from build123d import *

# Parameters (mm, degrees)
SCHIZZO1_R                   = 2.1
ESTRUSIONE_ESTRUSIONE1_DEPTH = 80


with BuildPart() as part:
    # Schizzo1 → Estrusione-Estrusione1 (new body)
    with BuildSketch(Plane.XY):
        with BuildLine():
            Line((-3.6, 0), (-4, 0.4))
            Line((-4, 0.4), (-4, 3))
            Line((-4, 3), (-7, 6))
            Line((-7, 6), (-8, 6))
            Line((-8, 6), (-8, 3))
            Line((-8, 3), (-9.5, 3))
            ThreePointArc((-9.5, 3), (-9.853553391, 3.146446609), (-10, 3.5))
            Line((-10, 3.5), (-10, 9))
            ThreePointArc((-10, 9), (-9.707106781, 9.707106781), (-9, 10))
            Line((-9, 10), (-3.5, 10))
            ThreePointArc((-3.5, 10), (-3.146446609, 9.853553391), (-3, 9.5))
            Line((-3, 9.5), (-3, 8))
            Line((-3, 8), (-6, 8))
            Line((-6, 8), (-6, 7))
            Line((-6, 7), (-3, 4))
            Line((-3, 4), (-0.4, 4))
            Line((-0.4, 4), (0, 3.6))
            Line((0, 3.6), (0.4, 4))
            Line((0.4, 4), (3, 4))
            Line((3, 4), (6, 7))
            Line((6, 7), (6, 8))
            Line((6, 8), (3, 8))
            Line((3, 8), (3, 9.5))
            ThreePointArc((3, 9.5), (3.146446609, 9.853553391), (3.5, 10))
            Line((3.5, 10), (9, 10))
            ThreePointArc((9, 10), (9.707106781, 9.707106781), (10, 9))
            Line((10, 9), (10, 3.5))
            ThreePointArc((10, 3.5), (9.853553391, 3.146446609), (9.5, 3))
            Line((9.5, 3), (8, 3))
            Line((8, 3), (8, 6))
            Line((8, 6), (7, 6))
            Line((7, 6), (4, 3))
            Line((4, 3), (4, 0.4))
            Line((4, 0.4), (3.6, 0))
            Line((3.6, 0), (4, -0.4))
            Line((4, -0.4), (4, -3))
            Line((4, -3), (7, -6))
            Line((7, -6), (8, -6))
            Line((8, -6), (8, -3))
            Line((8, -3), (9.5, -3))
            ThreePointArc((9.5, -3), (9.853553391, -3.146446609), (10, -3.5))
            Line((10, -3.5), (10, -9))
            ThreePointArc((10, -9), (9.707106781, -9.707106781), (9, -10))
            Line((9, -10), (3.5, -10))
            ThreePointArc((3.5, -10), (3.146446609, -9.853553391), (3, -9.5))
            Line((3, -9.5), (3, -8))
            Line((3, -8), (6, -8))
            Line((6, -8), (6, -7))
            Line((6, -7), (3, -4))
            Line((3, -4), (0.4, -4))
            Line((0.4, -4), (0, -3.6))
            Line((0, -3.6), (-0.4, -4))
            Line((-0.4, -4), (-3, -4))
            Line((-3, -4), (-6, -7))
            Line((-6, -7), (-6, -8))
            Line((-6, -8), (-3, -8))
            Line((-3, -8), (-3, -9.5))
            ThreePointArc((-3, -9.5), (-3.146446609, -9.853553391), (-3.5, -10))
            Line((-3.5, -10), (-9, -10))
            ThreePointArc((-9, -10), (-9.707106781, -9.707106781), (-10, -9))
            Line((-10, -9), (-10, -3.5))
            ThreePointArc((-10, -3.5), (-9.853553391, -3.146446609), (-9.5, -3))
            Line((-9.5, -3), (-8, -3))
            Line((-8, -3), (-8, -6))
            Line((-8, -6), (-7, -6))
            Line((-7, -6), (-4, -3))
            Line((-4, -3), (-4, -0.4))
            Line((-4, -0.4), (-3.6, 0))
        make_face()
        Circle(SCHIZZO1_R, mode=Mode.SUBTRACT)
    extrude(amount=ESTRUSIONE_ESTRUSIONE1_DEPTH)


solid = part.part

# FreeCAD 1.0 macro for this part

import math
import FreeCAD as App
import Part
import Sketcher

V = App.Vector

doc = App.newDocument("Part")
body = doc.addObject("PartDesign::Body", "Body")

# Sketch on XY plane
sketch1 = doc.addObject("Sketcher::SketchObject", "Sketch")
body.addObject(sketch1)
sketch1.AttachmentSupport = (doc.XY_Plane, [""])
sketch1.MapMode = "FlatFace"
sketch1.addGeometry(Part.LineSegment(V(-4, 0.4, 0), V(-3.6, 0, 0)), False)
sketch1.addGeometry(Part.LineSegment(V(-3.6, 0, 0), V(-4, -0.4, 0)), False)
sketch1.addGeometry(Part.LineSegment(V(-4, -0.4, 0), V(-4, -3, 0)), False)
sketch1.addGeometry(Part.LineSegment(V(-4, -3, 0), V(-7, -6, 0)), False)
sketch1.addGeometry(Part.LineSegment(V(-7, -6, 0), V(-8, -6, 0)), False)
sketch1.addGeometry(Part.LineSegment(V(-8, -6, 0), V(-8, -3, 0)), False)
sketch1.addGeometry(Part.LineSegment(V(-8, -3, 0), V(-9.5, -3, 0)), False)
sketch1.addGeometry(Part.ArcOfCircle(Part.Circle(V(-9.5, -3.5, 0), V(0, 0, 1), 0.5), math.radians(90), math.radians(180)), False)
sketch1.addGeometry(Part.LineSegment(V(-10, -3.5, 0), V(-10, -9, 0)), False)
sketch1.addGeometry(Part.ArcOfCircle(Part.Circle(V(-9, -9, 0), V(0, 0, 1), 1), math.radians(-180), math.radians(-90)), False)
sketch1.addGeometry(Part.LineSegment(V(-9, -10, 0), V(-3.5, -10, 0)), False)
sketch1.addGeometry(Part.ArcOfCircle(Part.Circle(V(-3.5, -9.5, 0), V(0, 0, 1), 0.5), math.radians(-90), math.radians(0)), False)
sketch1.addGeometry(Part.LineSegment(V(-3, -9.5, 0), V(-3, -8, 0)), False)
sketch1.addGeometry(Part.LineSegment(V(-3, -8, 0), V(-6, -8, 0)), False)
sketch1.addGeometry(Part.LineSegment(V(-6, -8, 0), V(-6, -7, 0)), False)
sketch1.addGeometry(Part.LineSegment(V(-6, -7, 0), V(-3, -4, 0)), False)
sketch1.addGeometry(Part.LineSegment(V(-3, -4, 0), V(-0.4, -4, 0)), False)
sketch1.addGeometry(Part.LineSegment(V(-0.4, -4, 0), V(0, -3.6, 0)), False)
sketch1.addGeometry(Part.LineSegment(V(0, -3.6, 0), V(0.4, -4, 0)), False)
sketch1.addGeometry(Part.LineSegment(V(0.4, -4, 0), V(3, -4, 0)), False)
sketch1.addGeometry(Part.LineSegment(V(3, -4, 0), V(6, -7, 0)), False)
sketch1.addGeometry(Part.LineSegment(V(6, -7, 0), V(6, -8, 0)), False)
sketch1.addGeometry(Part.LineSegment(V(6, -8, 0), V(3, -8, 0)), False)
sketch1.addGeometry(Part.LineSegment(V(3, -8, 0), V(3, -9.5, 0)), False)
sketch1.addGeometry(Part.ArcOfCircle(Part.Circle(V(3.5, -9.5, 0), V(0, 0, 1), 0.5), math.radians(180), math.radians(270)), False)
sketch1.addGeometry(Part.LineSegment(V(3.5, -10, 0), V(9, -10, 0)), False)
sketch1.addGeometry(Part.ArcOfCircle(Part.Circle(V(9, -9, 0), V(0, 0, 1), 1), math.radians(-90), math.radians(0)), False)
sketch1.addGeometry(Part.LineSegment(V(10, -9, 0), V(10, -3.5, 0)), False)
sketch1.addGeometry(Part.ArcOfCircle(Part.Circle(V(9.5, -3.5, 0), V(0, 0, 1), 0.5), math.radians(0), math.radians(90)), False)
sketch1.addGeometry(Part.LineSegment(V(9.5, -3, 0), V(8, -3, 0)), False)
sketch1.addGeometry(Part.LineSegment(V(8, -3, 0), V(8, -6, 0)), False)
sketch1.addGeometry(Part.LineSegment(V(8, -6, 0), V(7, -6, 0)), False)
sketch1.addGeometry(Part.LineSegment(V(7, -6, 0), V(4, -3, 0)), False)
sketch1.addGeometry(Part.LineSegment(V(4, -3, 0), V(4, -0.4, 0)), False)
sketch1.addGeometry(Part.LineSegment(V(4, -0.4, 0), V(3.6, 0, 0)), False)
sketch1.addGeometry(Part.LineSegment(V(3.6, 0, 0), V(4, 0.4, 0)), False)
sketch1.addGeometry(Part.LineSegment(V(4, 0.4, 0), V(4, 3, 0)), False)
sketch1.addGeometry(Part.LineSegment(V(4, 3, 0), V(7, 6, 0)), False)
sketch1.addGeometry(Part.LineSegment(V(7, 6, 0), V(8, 6, 0)), False)
sketch1.addGeometry(Part.LineSegment(V(8, 6, 0), V(8, 3, 0)), False)
sketch1.addGeometry(Part.LineSegment(V(8, 3, 0), V(9.5, 3, 0)), False)
sketch1.addGeometry(Part.ArcOfCircle(Part.Circle(V(9.5, 3.5, 0), V(0, 0, 1), 0.5), math.radians(-90), math.radians(0)), False)
sketch1.addGeometry(Part.LineSegment(V(10, 3.5, 0), V(10, 9, 0)), False)
sketch1.addGeometry(Part.ArcOfCircle(Part.Circle(V(9, 9, 0), V(0, 0, 1), 1), math.radians(0), math.radians(90)), False)
sketch1.addGeometry(Part.LineSegment(V(9, 10, 0), V(3.5, 10, 0)), False)
sketch1.addGeometry(Part.ArcOfCircle(Part.Circle(V(3.5, 9.5, 0), V(0, 0, 1), 0.5), math.radians(90), math.radians(180)), False)
sketch1.addGeometry(Part.LineSegment(V(3, 9.5, 0), V(3, 8, 0)), False)
sketch1.addGeometry(Part.LineSegment(V(3, 8, 0), V(6, 8, 0)), False)
sketch1.addGeometry(Part.LineSegment(V(6, 8, 0), V(6, 7, 0)), False)
sketch1.addGeometry(Part.LineSegment(V(6, 7, 0), V(3, 4, 0)), False)
sketch1.addGeometry(Part.LineSegment(V(3, 4, 0), V(0.4, 4, 0)), False)
sketch1.addGeometry(Part.LineSegment(V(0.4, 4, 0), V(0, 3.6, 0)), False)
sketch1.addGeometry(Part.LineSegment(V(0, 3.6, 0), V(-0.4, 4, 0)), False)
sketch1.addGeometry(Part.LineSegment(V(-0.4, 4, 0), V(-3, 4, 0)), False)
sketch1.addGeometry(Part.LineSegment(V(-3, 4, 0), V(-6, 7, 0)), False)
sketch1.addGeometry(Part.LineSegment(V(-6, 7, 0), V(-6, 8, 0)), False)
sketch1.addGeometry(Part.LineSegment(V(-6, 8, 0), V(-3, 8, 0)), False)
sketch1.addGeometry(Part.LineSegment(V(-3, 8, 0), V(-3, 9.5, 0)), False)
sketch1.addGeometry(Part.ArcOfCircle(Part.Circle(V(-3.5, 9.5, 0), V(0, 0, 1), 0.5), math.radians(0), math.radians(90)), False)
sketch1.addGeometry(Part.LineSegment(V(-3.5, 10, 0), V(-9, 10, 0)), False)
sketch1.addGeometry(Part.ArcOfCircle(Part.Circle(V(-9, 9, 0), V(0, 0, 1), 1), math.radians(90), math.radians(180)), False)
sketch1.addGeometry(Part.LineSegment(V(-10, 9, 0), V(-10, 3.5, 0)), False)
sketch1.addGeometry(Part.ArcOfCircle(Part.Circle(V(-9.5, 3.5, 0), V(0, 0, 1), 0.5), math.radians(180), math.radians(270)), False)
sketch1.addGeometry(Part.LineSegment(V(-9.5, 3, 0), V(-8, 3, 0)), False)
sketch1.addGeometry(Part.LineSegment(V(-8, 3, 0), V(-8, 6, 0)), False)
sketch1.addGeometry(Part.LineSegment(V(-8, 6, 0), V(-7, 6, 0)), False)
sketch1.addGeometry(Part.LineSegment(V(-7, 6, 0), V(-4, 3, 0)), False)
sketch1.addGeometry(Part.LineSegment(V(-4, 3, 0), V(-4, 0.4, 0)), False)
sketch1.addGeometry(Part.Circle(V(0, 0, 0), V(0, 0, 1), 2.1), False)
sketch1.addConstraint(Sketcher.Constraint("Coincident", 0, 2, 1, 1))
sketch1.addConstraint(Sketcher.Constraint("Coincident", 1, 2, 2, 1))
sketch1.addConstraint(Sketcher.Constraint("Coincident", 2, 2, 3, 1))
sketch1.addConstraint(Sketcher.Constraint("Coincident", 3, 2, 4, 1))
sketch1.addConstraint(Sketcher.Constraint("Coincident", 4, 2, 5, 1))
sketch1.addConstraint(Sketcher.Constraint("Coincident", 5, 2, 6, 1))
sketch1.addConstraint(Sketcher.Constraint("Tangent", 6, 2, 7, 1))
sketch1.addConstraint(Sketcher.Constraint("Tangent", 7, 2, 8, 1))
sketch1.addConstraint(Sketcher.Constraint("Tangent", 8, 2, 9, 1))
sketch1.addConstraint(Sketcher.Constraint("Tangent", 9, 2, 10, 1))
sketch1.addConstraint(Sketcher.Constraint("Tangent", 10, 2, 11, 1))
sketch1.addConstraint(Sketcher.Constraint("Tangent", 11, 2, 12, 1))
sketch1.addConstraint(Sketcher.Constraint("Coincident", 12, 2, 13, 1))
sketch1.addConstraint(Sketcher.Constraint("Coincident", 13, 2, 14, 1))
sketch1.addConstraint(Sketcher.Constraint("Coincident", 14, 2, 15, 1))
sketch1.addConstraint(Sketcher.Constraint("Coincident", 15, 2, 16, 1))
sketch1.addConstraint(Sketcher.Constraint("Coincident", 16, 2, 17, 1))
sketch1.addConstraint(Sketcher.Constraint("Coincident", 17, 2, 18, 1))
sketch1.addConstraint(Sketcher.Constraint("Coincident", 18, 2, 19, 1))
sketch1.addConstraint(Sketcher.Constraint("Coincident", 19, 2, 20, 1))
sketch1.addConstraint(Sketcher.Constraint("Coincident", 20, 2, 21, 1))
sketch1.addConstraint(Sketcher.Constraint("Coincident", 21, 2, 22, 1))
sketch1.addConstraint(Sketcher.Constraint("Coincident", 22, 2, 23, 1))
sketch1.addConstraint(Sketcher.Constraint("Tangent", 23, 2, 24, 1))
sketch1.addConstraint(Sketcher.Constraint("Tangent", 24, 2, 25, 1))
sketch1.addConstraint(Sketcher.Constraint("Tangent", 25, 2, 26, 1))
sketch1.addConstraint(Sketcher.Constraint("Tangent", 26, 2, 27, 1))
sketch1.addConstraint(Sketcher.Constraint("Tangent", 27, 2, 28, 1))
sketch1.addConstraint(Sketcher.Constraint("Tangent", 28, 2, 29, 1))
sketch1.addConstraint(Sketcher.Constraint("Coincident", 29, 2, 30, 1))
sketch1.addConstraint(Sketcher.Constraint("Coincident", 30, 2, 31, 1))
sketch1.addConstraint(Sketcher.Constraint("Coincident", 31, 2, 32, 1))
sketch1.addConstraint(Sketcher.Constraint("Coincident", 32, 2, 33, 1))
sketch1.addConstraint(Sketcher.Constraint("Coincident", 33, 2, 34, 1))
sketch1.addConstraint(Sketcher.Constraint("Coincident", 34, 2, 35, 1))
sketch1.addConstraint(Sketcher.Constraint("Coincident", 35, 2, 36, 1))
sketch1.addConstraint(Sketcher.Constraint("Coincident", 36, 2, 37, 1))
sketch1.addConstraint(Sketcher.Constraint("Coincident", 37, 2, 38, 1))
sketch1.addConstraint(Sketcher.Constraint("Coincident", 38, 2, 39, 1))
sketch1.addConstraint(Sketcher.Constraint("Coincident", 39, 2, 40, 1))
sketch1.addConstraint(Sketcher.Constraint("Tangent", 40, 2, 41, 1))
sketch1.addConstraint(Sketcher.Constraint("Tangent", 41, 2, 42, 1))
sketch1.addConstraint(Sketcher.Constraint("Tangent", 42, 2, 43, 1))
sketch1.addConstraint(Sketcher.Constraint("Tangent", 43, 2, 44, 1))
sketch1.addConstraint(Sketcher.Constraint("Tangent", 44, 2, 45, 1))
sketch1.addConstraint(Sketcher.Constraint("Tangent", 45, 2, 46, 1))
sketch1.addConstraint(Sketcher.Constraint("Coincident", 46, 2, 47, 1))
sketch1.addConstraint(Sketcher.Constraint("Coincident", 47, 2, 48, 1))
sketch1.addConstraint(Sketcher.Constraint("Coincident", 48, 2, 49, 1))
sketch1.addConstraint(Sketcher.Constraint("Coincident", 49, 2, 50, 1))
sketch1.addConstraint(Sketcher.Constraint("Coincident", 50, 2, 51, 1))
sketch1.addConstraint(Sketcher.Constraint("Coincident", 51, 2, 52, 1))
sketch1.addConstraint(Sketcher.Constraint("Coincident", 52, 2, 53, 1))
sketch1.addConstraint(Sketcher.Constraint("Coincident", 53, 2, 54, 1))
sketch1.addConstraint(Sketcher.Constraint("Coincident", 54, 2, 55, 1))
sketch1.addConstraint(Sketcher.Constraint("Coincident", 55, 2, 56, 1))
sketch1.addConstraint(Sketcher.Constraint("Coincident", 56, 2, 57, 1))
sketch1.addConstraint(Sketcher.Constraint("Tangent", 57, 2, 58, 1))
sketch1.addConstraint(Sketcher.Constraint("Tangent", 58, 2, 59, 1))
sketch1.addConstraint(Sketcher.Constraint("Tangent", 59, 2, 60, 1))
sketch1.addConstraint(Sketcher.Constraint("Tangent", 60, 2, 61, 1))
sketch1.addConstraint(Sketcher.Constraint("Tangent", 61, 2, 62, 1))
sketch1.addConstraint(Sketcher.Constraint("Tangent", 62, 2, 63, 1))
sketch1.addConstraint(Sketcher.Constraint("Coincident", 63, 2, 64, 1))
sketch1.addConstraint(Sketcher.Constraint("Coincident", 64, 2, 65, 1))
sketch1.addConstraint(Sketcher.Constraint("Coincident", 65, 2, 66, 1))
sketch1.addConstraint(Sketcher.Constraint("Coincident", 66, 2, 67, 1))
sketch1.addConstraint(Sketcher.Constraint("Coincident", 67, 2, 0, 1))
sketch1.addConstraint(Sketcher.Constraint("Vertical", 2))
sketch1.addConstraint(Sketcher.Constraint("Horizontal", 4))
sketch1.addConstraint(Sketcher.Constraint("Vertical", 5))
sketch1.addConstraint(Sketcher.Constraint("Horizontal", 6))
sketch1.addConstraint(Sketcher.Constraint("Vertical", 8))
sketch1.addConstraint(Sketcher.Constraint("Horizontal", 10))
sketch1.addConstraint(Sketcher.Constraint("Vertical", 12))
sketch1.addConstraint(Sketcher.Constraint("Horizontal", 13))
sketch1.addConstraint(Sketcher.Constraint("Vertical", 14))
sketch1.addConstraint(Sketcher.Constraint("Horizontal", 16))
sketch1.addConstraint(Sketcher.Constraint("Horizontal", 19))
sketch1.addConstraint(Sketcher.Constraint("Vertical", 21))
sketch1.addConstraint(Sketcher.Constraint("Horizontal", 22))
sketch1.addConstraint(Sketcher.Constraint("Vertical", 23))
sketch1.addConstraint(Sketcher.Constraint("Horizontal", 25))
sketch1.addConstraint(Sketcher.Constraint("Vertical", 27))
sketch1.addConstraint(Sketcher.Constraint("Horizontal", 29))
sketch1.addConstraint(Sketcher.Constraint("Vertical", 30))
sketch1.addConstraint(Sketcher.Constraint("Horizontal", 31))
sketch1.addConstraint(Sketcher.Constraint("Vertical", 33))
sketch1.addConstraint(Sketcher.Constraint("Vertical", 36))
sketch1.addConstraint(Sketcher.Constraint("Horizontal", 38))
sketch1.addConstraint(Sketcher.Constraint("Vertical", 39))
sketch1.addConstraint(Sketcher.Constraint("Horizontal", 40))
sketch1.addConstraint(Sketcher.Constraint("Vertical", 42))
sketch1.addConstraint(Sketcher.Constraint("Horizontal", 44))
sketch1.addConstraint(Sketcher.Constraint("Vertical", 46))
sketch1.addConstraint(Sketcher.Constraint("Horizontal", 47))
sketch1.addConstraint(Sketcher.Constraint("Vertical", 48))
sketch1.addConstraint(Sketcher.Constraint("Horizontal", 50))
sketch1.addConstraint(Sketcher.Constraint("Horizontal", 53))
sketch1.addConstraint(Sketcher.Constraint("Vertical", 55))
sketch1.addConstraint(Sketcher.Constraint("Horizontal", 56))
sketch1.addConstraint(Sketcher.Constraint("Vertical", 57))
sketch1.addConstraint(Sketcher.Constraint("Horizontal", 59))
sketch1.addConstraint(Sketcher.Constraint("Vertical", 61))
sketch1.addConstraint(Sketcher.Constraint("Horizontal", 63))
sketch1.addConstraint(Sketcher.Constraint("Vertical", 64))
sketch1.addConstraint(Sketcher.Constraint("Horizontal", 65))
sketch1.addConstraint(Sketcher.Constraint("Vertical", 67))
sketch1.addConstraint(Sketcher.Constraint("Coincident", 68, 3, -1, 1))
sketch1.addConstraint(Sketcher.Constraint("Equal", 7, 11))
sketch1.addConstraint(Sketcher.Constraint("Equal", 11, 24))
sketch1.addConstraint(Sketcher.Constraint("Equal", 9, 26))
sketch1.addConstraint(Sketcher.Constraint("Equal", 24, 28))
sketch1.addConstraint(Sketcher.Constraint("Equal", 28, 41))
sketch1.addConstraint(Sketcher.Constraint("Equal", 26, 43))
sketch1.addConstraint(Sketcher.Constraint("Equal", 41, 45))
sketch1.addConstraint(Sketcher.Constraint("Equal", 45, 58))
sketch1.addConstraint(Sketcher.Constraint("Equal", 43, 60))
sketch1.addConstraint(Sketcher.Constraint("Equal", 58, 62))
sketch1.addConstraint(Sketcher.Constraint("Symmetric", 7, 3, 41, 3, -1, 1))
sketch1.addConstraint(Sketcher.Constraint("Symmetric", 11, 3, 45, 3, -1, 1))
sketch1.addConstraint(Sketcher.Constraint("Symmetric", 24, 3, 58, 3, -1, 1))
sketch1.addConstraint(Sketcher.Constraint("Symmetric", 28, 3, 62, 3, -1, 1))
sketch1.addConstraint(Sketcher.Constraint("Symmetric", 0, 2, 34, 2, -1, 1))
sketch1.addConstraint(Sketcher.Constraint("Symmetric", 1, 2, 35, 2, -1, 1))
sketch1.addConstraint(Sketcher.Constraint("Symmetric", 3, 2, 37, 2, -1, 1))
sketch1.addConstraint(Sketcher.Constraint("Symmetric", 13, 2, 47, 2, -1, 1))
sketch1.addConstraint(Sketcher.Constraint("Symmetric", 15, 2, 49, 2, -1, 1))
sketch1.addConstraint(Sketcher.Constraint("Symmetric", 17, 2, 51, 2, -1, 1))
sketch1.addConstraint(Sketcher.Constraint("Symmetric", 18, 2, 52, 2, -1, 1))
sketch1.addConstraint(Sketcher.Constraint("Symmetric", 20, 2, 54, 2, -1, 1))
sketch1.addConstraint(Sketcher.Constraint("Symmetric", 30, 2, 64, 2, -1, 1))
sketch1.addConstraint(Sketcher.Constraint("Symmetric", 32, 2, 66, 2, -1, 1))
sketch1.addConstraint(Sketcher.Constraint("Symmetric", 11, 3, 24, 3, -2))
sketch1.addConstraint(Sketcher.Constraint("Symmetric", 7, 3, 28, 3, -2))
sketch1.addConstraint(Sketcher.Constraint("Symmetric", 16, 2, 18, 2, -2))
sketch1.addConstraint(Sketcher.Constraint("Symmetric", 14, 2, 20, 2, -2))
sketch1.addConstraint(Sketcher.Constraint("Symmetric", 4, 2, 30, 2, -2))
sketch1.addConstraint(Sketcher.Constraint("Symmetric", 2, 2, 32, 2, -2))
sketch1.addConstraint(Sketcher.Constraint("PointOnObject", 0, 2, -1))
sketch1.addConstraint(Sketcher.Constraint("PointOnObject", 17, 2, -2))
sketch1.addConstraint(Sketcher.Constraint("Perpendicular", 0, 1))
sketch1.addConstraint(Sketcher.Constraint("Parallel", 1, 3))
sketch1.addConstraint(Sketcher.Constraint("Parallel", 3, 15))
sketch1.addConstraint(Sketcher.Constraint("Parallel", 15, 17))
sketch1.addConstraint(Sketcher.Constraint("Perpendicular", 17, 18))
sketch1.addConstraint(Sketcher.Constraint("Parallel", 18, 20))
sketch1.addConstraint(Sketcher.Constraint("Parallel", 20, 32))
sketch1.addConstraint(Sketcher.Constraint("Parallel", 32, 34))
sketch1.addConstraint(Sketcher.Constraint("Parallel", 35, 37))
sketch1.addConstraint(Sketcher.Constraint("Parallel", 37, 49))
sketch1.addConstraint(Sketcher.Constraint("Parallel", 49, 51))
sketch1.addConstraint(Sketcher.Constraint("Parallel", 52, 54))
sketch1.addConstraint(Sketcher.Constraint("Parallel", 54, 66))
sketch1.addConstraint(Sketcher.Constraint("Horizontal", 2, 2, 5, 2))
sketch1.addConstraint(Sketcher.Constraint("Horizontal", 13, 2, 21, 2))
sketch1.addConstraint(Sketcher.Constraint("Horizontal", 47, 2, 55, 2))
sketch1.addConstraint(Sketcher.Constraint("Vertical", 12, 2, 15, 2))
sketch1.addConstraint(Sketcher.Constraint("Vertical", 30, 2, 38, 2))
sketch1.addConstraint(Sketcher.Constraint("Equal", 53, 2))
sketch1.addConstraint(Sketcher.Constraint("Equal", 56, 5))
sketch1.addConstraint(Sketcher.Constraint("Equal", 59, 8))
sketch1.addConstraint(Sketcher.Constraint("Equal", 63, 12))
sketch1.addConstraint(Sketcher.Constraint("Equal", 65, 14))
sketch1.addConstraint(Sketcher.Constraint("Equal", 1, 17))
sketch1.addConstraint(Sketcher.Constraint("Radius", 9, 1.0))
sketch1.addConstraint(Sketcher.Constraint("Diameter", 68, 4.2))
sketch1.addConstraint(Sketcher.Constraint("Radius", 7, 0.5))
sketch1.addConstraint(Sketcher.Constraint("DistanceX", 4, 2, 4, 1, 1.0))
sketch1.addConstraint(Sketcher.Constraint("DistanceX", 13, 2, 13, 1, 3.0))
sketch1.addConstraint(Sketcher.Constraint("DistanceX", 6, 2, 6, 1, 1.5))
sketch1.addConstraint(Sketcher.Constraint("DistanceX", 10, 1, 10, 2, 5.5))
sketch1.addConstraint(Sketcher.Constraint("DistanceX", 16, 1, 16, 2, 2.6))
sketch1.addConstraint(Sketcher.Constraint("DistanceX", 9, 3, -1, 1, 9.0))
pad1 = doc.addObject("PartDesign::Pad", "Pad")
body.addObject(pad1)
pad1.Profile = sketch1
pad1.Length = 80

doc.recompute()
